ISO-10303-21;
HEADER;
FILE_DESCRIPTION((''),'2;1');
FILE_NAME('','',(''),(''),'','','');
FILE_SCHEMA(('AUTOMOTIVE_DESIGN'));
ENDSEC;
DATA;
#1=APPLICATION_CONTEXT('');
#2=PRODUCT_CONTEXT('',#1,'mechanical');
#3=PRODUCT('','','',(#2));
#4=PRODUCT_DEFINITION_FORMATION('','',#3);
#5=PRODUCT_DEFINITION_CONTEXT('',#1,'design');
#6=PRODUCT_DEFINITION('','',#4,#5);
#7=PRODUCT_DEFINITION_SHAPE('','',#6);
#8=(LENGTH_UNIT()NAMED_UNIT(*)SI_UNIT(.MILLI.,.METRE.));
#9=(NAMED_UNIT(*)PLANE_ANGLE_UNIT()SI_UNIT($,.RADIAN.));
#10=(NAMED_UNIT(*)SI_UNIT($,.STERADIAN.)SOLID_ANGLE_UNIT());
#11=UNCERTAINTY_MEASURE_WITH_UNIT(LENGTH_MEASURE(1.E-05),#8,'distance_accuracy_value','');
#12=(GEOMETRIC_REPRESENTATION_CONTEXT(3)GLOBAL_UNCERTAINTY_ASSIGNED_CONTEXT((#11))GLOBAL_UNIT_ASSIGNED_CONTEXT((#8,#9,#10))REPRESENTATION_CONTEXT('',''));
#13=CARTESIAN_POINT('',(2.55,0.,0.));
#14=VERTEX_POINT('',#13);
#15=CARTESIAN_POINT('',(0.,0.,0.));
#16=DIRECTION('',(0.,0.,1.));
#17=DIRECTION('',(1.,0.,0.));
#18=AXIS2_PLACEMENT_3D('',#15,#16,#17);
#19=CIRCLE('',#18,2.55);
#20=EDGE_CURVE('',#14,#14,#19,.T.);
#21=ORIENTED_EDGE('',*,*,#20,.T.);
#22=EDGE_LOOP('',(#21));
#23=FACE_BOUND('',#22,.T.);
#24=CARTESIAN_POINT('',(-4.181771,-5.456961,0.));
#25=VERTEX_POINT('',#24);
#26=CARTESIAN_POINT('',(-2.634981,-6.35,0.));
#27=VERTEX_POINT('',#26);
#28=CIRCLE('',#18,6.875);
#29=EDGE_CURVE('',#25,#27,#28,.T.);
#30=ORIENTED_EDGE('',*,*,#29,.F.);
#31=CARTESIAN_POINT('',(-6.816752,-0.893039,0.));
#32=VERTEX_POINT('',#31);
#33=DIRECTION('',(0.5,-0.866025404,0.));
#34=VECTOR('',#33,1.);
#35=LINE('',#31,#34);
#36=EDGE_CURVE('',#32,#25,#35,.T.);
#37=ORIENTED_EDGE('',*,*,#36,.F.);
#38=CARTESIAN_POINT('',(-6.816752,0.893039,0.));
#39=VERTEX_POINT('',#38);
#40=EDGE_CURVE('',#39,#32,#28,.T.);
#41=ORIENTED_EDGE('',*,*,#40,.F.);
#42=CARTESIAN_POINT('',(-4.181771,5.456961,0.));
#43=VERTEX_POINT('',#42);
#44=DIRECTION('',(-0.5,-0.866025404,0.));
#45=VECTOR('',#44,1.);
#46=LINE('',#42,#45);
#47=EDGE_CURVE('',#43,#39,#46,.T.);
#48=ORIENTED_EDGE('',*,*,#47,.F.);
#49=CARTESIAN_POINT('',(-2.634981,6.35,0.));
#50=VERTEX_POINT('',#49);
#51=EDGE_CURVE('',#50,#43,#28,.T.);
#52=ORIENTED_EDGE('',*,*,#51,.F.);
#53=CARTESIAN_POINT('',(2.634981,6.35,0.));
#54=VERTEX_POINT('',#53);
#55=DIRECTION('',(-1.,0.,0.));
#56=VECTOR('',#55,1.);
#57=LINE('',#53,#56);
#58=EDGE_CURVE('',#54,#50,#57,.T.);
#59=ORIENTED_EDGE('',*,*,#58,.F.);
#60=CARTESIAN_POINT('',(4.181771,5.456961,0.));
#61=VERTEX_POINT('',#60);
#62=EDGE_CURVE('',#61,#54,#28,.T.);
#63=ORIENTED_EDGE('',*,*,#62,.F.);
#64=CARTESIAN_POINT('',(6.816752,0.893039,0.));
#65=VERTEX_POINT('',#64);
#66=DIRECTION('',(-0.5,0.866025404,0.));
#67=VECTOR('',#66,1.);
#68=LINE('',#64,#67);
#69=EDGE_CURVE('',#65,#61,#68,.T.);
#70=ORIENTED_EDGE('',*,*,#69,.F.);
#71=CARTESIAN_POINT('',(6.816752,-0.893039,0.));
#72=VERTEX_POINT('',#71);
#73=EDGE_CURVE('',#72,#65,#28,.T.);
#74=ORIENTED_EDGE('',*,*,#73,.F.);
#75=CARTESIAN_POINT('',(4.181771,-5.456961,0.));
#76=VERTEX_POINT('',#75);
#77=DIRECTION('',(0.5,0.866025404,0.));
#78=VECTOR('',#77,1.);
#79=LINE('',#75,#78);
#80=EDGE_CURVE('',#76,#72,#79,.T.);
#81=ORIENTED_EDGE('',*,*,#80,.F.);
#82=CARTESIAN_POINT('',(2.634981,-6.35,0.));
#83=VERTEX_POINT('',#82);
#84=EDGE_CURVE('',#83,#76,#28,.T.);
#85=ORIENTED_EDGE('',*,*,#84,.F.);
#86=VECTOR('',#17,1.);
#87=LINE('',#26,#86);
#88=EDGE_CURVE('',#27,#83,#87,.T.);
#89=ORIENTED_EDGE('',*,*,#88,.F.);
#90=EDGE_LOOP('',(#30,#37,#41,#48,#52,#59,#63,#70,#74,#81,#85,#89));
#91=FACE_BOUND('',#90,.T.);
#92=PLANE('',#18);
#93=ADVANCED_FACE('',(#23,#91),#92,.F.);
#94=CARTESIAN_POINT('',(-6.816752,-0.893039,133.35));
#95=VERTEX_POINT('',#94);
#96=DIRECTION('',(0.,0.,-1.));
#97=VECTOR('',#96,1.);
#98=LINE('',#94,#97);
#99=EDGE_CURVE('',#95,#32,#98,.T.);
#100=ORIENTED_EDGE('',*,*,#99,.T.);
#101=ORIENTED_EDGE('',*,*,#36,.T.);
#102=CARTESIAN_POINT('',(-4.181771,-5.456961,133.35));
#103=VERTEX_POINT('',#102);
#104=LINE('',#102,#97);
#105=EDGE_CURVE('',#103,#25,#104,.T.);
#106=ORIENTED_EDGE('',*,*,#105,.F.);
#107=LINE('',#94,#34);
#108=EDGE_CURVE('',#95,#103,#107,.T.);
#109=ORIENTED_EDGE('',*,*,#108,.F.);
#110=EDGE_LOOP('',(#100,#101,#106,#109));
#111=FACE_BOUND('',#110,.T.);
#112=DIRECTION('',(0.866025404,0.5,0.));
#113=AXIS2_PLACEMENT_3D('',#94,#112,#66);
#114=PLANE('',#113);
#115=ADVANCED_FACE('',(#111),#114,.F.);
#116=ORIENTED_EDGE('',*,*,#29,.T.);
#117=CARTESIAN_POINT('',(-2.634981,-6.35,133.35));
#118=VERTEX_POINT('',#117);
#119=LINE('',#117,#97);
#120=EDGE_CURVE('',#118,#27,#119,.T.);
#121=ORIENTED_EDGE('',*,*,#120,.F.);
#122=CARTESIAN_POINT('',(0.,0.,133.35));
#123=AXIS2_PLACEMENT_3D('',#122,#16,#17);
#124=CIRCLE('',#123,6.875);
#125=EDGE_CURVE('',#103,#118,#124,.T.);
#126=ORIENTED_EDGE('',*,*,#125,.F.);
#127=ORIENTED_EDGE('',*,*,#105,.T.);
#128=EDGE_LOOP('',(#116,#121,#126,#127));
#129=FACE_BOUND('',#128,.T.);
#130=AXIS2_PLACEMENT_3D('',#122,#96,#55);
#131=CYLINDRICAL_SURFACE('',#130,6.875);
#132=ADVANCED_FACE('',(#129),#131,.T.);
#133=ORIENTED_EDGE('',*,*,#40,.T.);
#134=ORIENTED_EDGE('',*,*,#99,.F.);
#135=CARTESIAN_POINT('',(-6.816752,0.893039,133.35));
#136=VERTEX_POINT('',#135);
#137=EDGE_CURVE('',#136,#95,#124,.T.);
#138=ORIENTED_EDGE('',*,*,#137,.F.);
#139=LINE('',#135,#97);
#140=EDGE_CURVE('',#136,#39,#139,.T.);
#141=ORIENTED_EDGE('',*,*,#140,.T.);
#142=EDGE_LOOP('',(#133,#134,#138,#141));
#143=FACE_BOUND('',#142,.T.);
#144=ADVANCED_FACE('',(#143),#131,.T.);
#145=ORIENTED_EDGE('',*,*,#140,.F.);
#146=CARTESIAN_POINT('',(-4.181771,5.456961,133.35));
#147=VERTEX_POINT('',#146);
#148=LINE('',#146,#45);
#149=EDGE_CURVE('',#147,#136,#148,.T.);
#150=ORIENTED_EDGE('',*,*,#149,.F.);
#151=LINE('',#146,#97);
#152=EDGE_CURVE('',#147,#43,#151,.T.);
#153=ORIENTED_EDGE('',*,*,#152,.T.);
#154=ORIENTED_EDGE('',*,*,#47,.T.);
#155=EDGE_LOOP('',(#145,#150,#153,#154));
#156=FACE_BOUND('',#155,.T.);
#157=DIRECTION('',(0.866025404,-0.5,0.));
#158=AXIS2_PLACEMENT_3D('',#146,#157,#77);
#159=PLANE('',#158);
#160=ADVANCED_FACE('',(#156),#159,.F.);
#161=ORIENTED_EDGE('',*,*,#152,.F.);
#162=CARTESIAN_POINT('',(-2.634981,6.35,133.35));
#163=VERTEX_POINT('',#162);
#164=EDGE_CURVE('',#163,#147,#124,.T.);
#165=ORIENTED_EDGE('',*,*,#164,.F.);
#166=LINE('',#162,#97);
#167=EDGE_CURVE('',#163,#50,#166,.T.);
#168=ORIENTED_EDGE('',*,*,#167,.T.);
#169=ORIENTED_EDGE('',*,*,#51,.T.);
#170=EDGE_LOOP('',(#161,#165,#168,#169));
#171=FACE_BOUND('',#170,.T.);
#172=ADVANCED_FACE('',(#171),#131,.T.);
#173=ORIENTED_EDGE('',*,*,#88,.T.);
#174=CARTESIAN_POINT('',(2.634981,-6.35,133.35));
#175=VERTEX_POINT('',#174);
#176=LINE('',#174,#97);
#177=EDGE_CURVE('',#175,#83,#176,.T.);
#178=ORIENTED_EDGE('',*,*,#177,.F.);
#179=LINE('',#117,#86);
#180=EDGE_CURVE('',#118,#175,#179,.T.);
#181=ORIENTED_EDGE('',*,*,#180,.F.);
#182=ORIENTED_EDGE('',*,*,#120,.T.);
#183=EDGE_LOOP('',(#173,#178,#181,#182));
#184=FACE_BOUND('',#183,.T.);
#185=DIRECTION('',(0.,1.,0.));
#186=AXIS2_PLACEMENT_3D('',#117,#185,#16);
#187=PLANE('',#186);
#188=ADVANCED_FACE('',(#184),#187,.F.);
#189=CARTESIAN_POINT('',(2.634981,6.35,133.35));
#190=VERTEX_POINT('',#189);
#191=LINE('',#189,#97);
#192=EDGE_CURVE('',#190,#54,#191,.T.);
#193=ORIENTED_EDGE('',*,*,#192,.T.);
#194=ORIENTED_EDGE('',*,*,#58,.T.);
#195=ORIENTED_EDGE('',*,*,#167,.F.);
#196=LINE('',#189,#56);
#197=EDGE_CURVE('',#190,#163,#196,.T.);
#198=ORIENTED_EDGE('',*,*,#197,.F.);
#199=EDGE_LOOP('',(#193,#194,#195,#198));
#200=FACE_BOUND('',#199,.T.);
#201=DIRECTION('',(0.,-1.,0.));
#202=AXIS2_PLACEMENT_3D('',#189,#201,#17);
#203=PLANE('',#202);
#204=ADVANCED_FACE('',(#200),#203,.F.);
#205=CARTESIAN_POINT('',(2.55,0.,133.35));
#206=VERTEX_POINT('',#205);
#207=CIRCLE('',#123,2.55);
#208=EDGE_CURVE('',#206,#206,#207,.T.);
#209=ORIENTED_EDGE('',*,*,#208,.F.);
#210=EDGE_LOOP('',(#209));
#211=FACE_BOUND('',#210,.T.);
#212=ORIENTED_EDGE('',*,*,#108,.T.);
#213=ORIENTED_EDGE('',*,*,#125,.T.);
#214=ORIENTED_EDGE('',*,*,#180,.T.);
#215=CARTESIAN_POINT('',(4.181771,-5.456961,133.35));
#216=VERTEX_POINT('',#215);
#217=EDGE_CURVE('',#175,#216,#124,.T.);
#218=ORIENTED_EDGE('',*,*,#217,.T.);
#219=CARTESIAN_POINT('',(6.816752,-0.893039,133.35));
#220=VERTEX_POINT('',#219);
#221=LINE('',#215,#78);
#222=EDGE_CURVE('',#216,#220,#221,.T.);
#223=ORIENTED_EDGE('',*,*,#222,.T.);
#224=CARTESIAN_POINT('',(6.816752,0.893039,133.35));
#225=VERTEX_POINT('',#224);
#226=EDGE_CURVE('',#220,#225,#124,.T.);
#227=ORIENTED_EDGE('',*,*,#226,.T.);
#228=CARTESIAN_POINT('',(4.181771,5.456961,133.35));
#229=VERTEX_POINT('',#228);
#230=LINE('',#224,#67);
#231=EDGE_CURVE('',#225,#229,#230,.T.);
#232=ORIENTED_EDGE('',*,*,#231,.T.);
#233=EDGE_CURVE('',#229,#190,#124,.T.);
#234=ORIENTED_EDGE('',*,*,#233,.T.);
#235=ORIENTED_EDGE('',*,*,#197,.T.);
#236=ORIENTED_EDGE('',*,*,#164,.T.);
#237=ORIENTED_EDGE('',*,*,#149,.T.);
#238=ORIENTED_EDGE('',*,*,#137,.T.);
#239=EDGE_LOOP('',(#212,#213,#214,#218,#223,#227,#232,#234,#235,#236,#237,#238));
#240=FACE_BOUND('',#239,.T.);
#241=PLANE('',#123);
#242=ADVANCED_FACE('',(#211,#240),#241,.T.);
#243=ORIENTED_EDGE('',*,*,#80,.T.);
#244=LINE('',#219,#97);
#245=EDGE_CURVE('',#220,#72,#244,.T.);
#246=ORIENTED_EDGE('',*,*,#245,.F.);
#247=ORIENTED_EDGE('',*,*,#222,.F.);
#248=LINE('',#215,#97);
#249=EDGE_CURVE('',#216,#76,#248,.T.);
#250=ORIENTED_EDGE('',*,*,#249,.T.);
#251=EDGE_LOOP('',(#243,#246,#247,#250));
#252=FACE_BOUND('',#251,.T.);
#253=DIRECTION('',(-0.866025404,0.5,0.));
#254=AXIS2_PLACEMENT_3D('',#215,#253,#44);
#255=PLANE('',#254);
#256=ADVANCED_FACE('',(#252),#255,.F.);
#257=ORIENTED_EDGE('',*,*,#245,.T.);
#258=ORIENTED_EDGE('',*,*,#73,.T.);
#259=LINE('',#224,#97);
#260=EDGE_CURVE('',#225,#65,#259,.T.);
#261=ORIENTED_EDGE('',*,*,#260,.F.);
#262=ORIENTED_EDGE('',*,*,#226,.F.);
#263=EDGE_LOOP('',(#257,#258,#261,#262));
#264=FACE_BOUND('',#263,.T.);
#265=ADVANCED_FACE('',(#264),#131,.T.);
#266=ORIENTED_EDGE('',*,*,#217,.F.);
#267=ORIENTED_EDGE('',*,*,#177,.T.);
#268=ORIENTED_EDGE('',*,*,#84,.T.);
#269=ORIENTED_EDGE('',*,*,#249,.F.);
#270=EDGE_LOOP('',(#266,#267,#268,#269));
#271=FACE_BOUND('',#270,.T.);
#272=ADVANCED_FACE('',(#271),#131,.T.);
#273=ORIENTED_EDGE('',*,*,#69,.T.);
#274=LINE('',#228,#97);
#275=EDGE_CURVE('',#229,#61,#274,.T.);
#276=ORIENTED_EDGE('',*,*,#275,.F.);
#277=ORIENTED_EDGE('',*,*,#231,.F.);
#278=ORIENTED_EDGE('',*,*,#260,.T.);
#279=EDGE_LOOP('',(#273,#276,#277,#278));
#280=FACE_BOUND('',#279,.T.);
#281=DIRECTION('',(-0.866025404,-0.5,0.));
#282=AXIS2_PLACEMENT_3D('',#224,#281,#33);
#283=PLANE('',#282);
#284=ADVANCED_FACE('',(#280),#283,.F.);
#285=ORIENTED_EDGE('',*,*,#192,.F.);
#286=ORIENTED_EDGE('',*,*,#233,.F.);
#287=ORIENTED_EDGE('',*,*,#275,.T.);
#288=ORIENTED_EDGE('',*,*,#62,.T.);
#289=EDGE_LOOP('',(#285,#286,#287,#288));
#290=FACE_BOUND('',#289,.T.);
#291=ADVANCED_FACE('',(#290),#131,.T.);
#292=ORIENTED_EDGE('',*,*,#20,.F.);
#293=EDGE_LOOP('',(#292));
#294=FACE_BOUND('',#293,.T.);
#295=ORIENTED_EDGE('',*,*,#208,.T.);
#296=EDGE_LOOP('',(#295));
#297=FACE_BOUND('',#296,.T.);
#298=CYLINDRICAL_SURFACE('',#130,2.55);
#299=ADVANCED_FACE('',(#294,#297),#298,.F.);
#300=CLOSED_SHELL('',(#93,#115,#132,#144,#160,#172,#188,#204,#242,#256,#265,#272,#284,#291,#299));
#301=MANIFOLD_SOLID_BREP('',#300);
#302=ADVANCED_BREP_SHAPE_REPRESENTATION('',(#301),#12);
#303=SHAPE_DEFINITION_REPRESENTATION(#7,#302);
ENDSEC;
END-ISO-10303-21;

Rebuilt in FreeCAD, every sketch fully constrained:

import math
import FreeCAD as App
import Part
import Sketcher
Q = App.Units.Quantity

doc = App.newDocument("Part")
body = doc.addObject("PartDesign::Body", "Body")

# Sketch on XY plane
sketch1 = body.newObject("Sketcher::SketchObject", "Sketch")
sketch1.AttachmentSupport = (doc.getObject("XY_Plane"), [""])
sketch1.MapMode = "FlatFace"
sketch1.addGeometry(Part.LineSegment(App.Vector(2.6, 6.3, 0), App.Vector(-2.6, 6.3, 0)), False)
sketch1.addGeometry(Part.ArcOfCircle(Part.Circle(App.Vector(0, 0, 0), App.Vector(0, 0, 1), 6.9), math.radians(112.54), math.radians(127.46)), False)
sketch1.addGeometry(Part.LineSegment(App.Vector(-4.2, 5.5, 0), App.Vector(-6.8, 0.9, 0)), False)
sketch1.addGeometry(Part.ArcOfCircle(Part.Circle(App.Vector(0, 0, 0), App.Vector(0, 0, 1), 6.9), math.radians(172.54), math.radians(187.46)), False)
sketch1.addGeometry(Part.LineSegment(App.Vector(-6.8, -0.9, 0), App.Vector(-4.2, -5.5, 0)), False)
sketch1.addGeometry(Part.ArcOfCircle(Part.Circle(App.Vector(0, 0, 0), App.Vector(0, 0, 1), 6.9), math.radians(-127.46), math.radians(-112.54)), False)
sketch1.addGeometry(Part.LineSegment(App.Vector(-2.6, -6.3, 0), App.Vector(2.6, -6.3, 0)), False)
sketch1.addGeometry(Part.ArcOfCircle(Part.Circle(App.Vector(0, 0, 0), App.Vector(0, 0, 1), 6.9), math.radians(-67.46), math.radians(-52.54)), False)
sketch1.addGeometry(Part.LineSegment(App.Vector(4.2, -5.5, 0), App.Vector(6.8, -0.9, 0)), False)
sketch1.addGeometry(Part.ArcOfCircle(Part.Circle(App.Vector(0, 0, 0), App.Vector(0, 0, 1), 6.9), math.radians(-7.46), math.radians(7.46)), False)
sketch1.addGeometry(Part.LineSegment(App.Vector(6.8, 0.9, 0), App.Vector(4.2, 5.5, 0)), False)
sketch1.addGeometry(Part.ArcOfCircle(Part.Circle(App.Vector(0, 0, 0), App.Vector(0, 0, 1), 6.9), math.radians(52.54), math.radians(67.46)), False)
sketch1.addGeometry(Part.Circle(App.Vector(0, 0, 0), App.Vector(0, 0, 1), 2.5), False)
sketch1.addConstraint(Sketcher.Constraint("Coincident", 0, 2, 1, 1))
sketch1.addConstraint(Sketcher.Constraint("Coincident", 1, 2, 2, 1))
sketch1.addConstraint(Sketcher.Constraint("Coincident", 2, 2, 3, 1))
sketch1.addConstraint(Sketcher.Constraint("Coincident", 3, 2, 4, 1))
sketch1.addConstraint(Sketcher.Constraint("Coincident", 4, 2, 5, 1))
sketch1.addConstraint(Sketcher.Constraint("Coincident", 5, 2, 6, 1))
sketch1.addConstraint(Sketcher.Constraint("Coincident", 6, 2, 7, 1))
sketch1.addConstraint(Sketcher.Constraint("Coincident", 7, 2, 8, 1))
sketch1.addConstraint(Sketcher.Constraint("Coincident", 8, 2, 9, 1))
sketch1.addConstraint(Sketcher.Constraint("Coincident", 9, 2, 10, 1))
sketch1.addConstraint(Sketcher.Constraint("Coincident", 10, 2, 11, 1))
sketch1.addConstraint(Sketcher.Constraint("Coincident", 11, 2, 0, 1))
sketch1.addConstraint(Sketcher.Constraint("Horizontal", 0))
sketch1.addConstraint(Sketcher.Constraint("Horizontal", 6))
sketch1.addConstraint(Sketcher.Constraint("Coincident", 1, 3, -1, 1))
sketch1.addConstraint(Sketcher.Constraint("Coincident", 3, 3, -1, 1))
sketch1.addConstraint(Sketcher.Constraint("Coincident", 5, 3, -1, 1))
sketch1.addConstraint(Sketcher.Constraint("Coincident", 7, 3, -1, 1))
sketch1.addConstraint(Sketcher.Constraint("Coincident", 9, 3, -1, 1))
sketch1.addConstraint(Sketcher.Constraint("Coincident", 11, 3, -1, 1))
sketch1.addConstraint(Sketcher.Constraint("Coincident", 12, 3, -1, 1))
sketch1.addConstraint(Sketcher.Constraint("Equal", 1, 3))
sketch1.addConstraint(Sketcher.Constraint("Equal", 3, 5))
sketch1.addConstraint(Sketcher.Constraint("Equal", 5, 7))
sketch1.addConstraint(Sketcher.Constraint("Equal", 7, 9))
sketch1.addConstraint(Sketcher.Constraint("Equal", 9, 11))
sketch1.addConstraint(Sketcher.Constraint("Parallel", 2, 8))
sketch1.addConstraint(Sketcher.Constraint("Parallel", 4, 10))
sketch1.addConstraint(Sketcher.Constraint("Horizontal", 4, 2, 7, 2))
sketch1.addConstraint(Sketcher.Constraint("Horizontal", 3, 2, 8, 2))
sketch1.addConstraint(Sketcher.Constraint("Horizontal", 2, 2, 9, 2))
sketch1.addConstraint(Sketcher.Constraint("Vertical", 2, 2, 3, 2))
sketch1.addConstraint(Sketcher.Constraint("Vertical", 0, 2, 5, 2))
sketch1.addConstraint(Sketcher.Constraint("Diameter", 12, Q("5.1 mm")))
sketch1.addConstraint(Sketcher.Constraint("Angle", 2, Q("-120 deg")))
sketch1.addConstraint(Sketcher.Constraint("Radius", 1, Q("6.875 mm")))
sketch1.addConstraint(Sketcher.Constraint("DistanceY", -1, 1, 0, 2, Q("6.35 mm")))
sketch1.addConstraint(Sketcher.Constraint("DistanceY", 3, 2, 1, 2, Q("6.35 mm")))
pad1 = body.newObject("PartDesign::Pad", "Pad")
pad1.Profile = sketch1
pad1.Length = 133.35

doc.recompute()
